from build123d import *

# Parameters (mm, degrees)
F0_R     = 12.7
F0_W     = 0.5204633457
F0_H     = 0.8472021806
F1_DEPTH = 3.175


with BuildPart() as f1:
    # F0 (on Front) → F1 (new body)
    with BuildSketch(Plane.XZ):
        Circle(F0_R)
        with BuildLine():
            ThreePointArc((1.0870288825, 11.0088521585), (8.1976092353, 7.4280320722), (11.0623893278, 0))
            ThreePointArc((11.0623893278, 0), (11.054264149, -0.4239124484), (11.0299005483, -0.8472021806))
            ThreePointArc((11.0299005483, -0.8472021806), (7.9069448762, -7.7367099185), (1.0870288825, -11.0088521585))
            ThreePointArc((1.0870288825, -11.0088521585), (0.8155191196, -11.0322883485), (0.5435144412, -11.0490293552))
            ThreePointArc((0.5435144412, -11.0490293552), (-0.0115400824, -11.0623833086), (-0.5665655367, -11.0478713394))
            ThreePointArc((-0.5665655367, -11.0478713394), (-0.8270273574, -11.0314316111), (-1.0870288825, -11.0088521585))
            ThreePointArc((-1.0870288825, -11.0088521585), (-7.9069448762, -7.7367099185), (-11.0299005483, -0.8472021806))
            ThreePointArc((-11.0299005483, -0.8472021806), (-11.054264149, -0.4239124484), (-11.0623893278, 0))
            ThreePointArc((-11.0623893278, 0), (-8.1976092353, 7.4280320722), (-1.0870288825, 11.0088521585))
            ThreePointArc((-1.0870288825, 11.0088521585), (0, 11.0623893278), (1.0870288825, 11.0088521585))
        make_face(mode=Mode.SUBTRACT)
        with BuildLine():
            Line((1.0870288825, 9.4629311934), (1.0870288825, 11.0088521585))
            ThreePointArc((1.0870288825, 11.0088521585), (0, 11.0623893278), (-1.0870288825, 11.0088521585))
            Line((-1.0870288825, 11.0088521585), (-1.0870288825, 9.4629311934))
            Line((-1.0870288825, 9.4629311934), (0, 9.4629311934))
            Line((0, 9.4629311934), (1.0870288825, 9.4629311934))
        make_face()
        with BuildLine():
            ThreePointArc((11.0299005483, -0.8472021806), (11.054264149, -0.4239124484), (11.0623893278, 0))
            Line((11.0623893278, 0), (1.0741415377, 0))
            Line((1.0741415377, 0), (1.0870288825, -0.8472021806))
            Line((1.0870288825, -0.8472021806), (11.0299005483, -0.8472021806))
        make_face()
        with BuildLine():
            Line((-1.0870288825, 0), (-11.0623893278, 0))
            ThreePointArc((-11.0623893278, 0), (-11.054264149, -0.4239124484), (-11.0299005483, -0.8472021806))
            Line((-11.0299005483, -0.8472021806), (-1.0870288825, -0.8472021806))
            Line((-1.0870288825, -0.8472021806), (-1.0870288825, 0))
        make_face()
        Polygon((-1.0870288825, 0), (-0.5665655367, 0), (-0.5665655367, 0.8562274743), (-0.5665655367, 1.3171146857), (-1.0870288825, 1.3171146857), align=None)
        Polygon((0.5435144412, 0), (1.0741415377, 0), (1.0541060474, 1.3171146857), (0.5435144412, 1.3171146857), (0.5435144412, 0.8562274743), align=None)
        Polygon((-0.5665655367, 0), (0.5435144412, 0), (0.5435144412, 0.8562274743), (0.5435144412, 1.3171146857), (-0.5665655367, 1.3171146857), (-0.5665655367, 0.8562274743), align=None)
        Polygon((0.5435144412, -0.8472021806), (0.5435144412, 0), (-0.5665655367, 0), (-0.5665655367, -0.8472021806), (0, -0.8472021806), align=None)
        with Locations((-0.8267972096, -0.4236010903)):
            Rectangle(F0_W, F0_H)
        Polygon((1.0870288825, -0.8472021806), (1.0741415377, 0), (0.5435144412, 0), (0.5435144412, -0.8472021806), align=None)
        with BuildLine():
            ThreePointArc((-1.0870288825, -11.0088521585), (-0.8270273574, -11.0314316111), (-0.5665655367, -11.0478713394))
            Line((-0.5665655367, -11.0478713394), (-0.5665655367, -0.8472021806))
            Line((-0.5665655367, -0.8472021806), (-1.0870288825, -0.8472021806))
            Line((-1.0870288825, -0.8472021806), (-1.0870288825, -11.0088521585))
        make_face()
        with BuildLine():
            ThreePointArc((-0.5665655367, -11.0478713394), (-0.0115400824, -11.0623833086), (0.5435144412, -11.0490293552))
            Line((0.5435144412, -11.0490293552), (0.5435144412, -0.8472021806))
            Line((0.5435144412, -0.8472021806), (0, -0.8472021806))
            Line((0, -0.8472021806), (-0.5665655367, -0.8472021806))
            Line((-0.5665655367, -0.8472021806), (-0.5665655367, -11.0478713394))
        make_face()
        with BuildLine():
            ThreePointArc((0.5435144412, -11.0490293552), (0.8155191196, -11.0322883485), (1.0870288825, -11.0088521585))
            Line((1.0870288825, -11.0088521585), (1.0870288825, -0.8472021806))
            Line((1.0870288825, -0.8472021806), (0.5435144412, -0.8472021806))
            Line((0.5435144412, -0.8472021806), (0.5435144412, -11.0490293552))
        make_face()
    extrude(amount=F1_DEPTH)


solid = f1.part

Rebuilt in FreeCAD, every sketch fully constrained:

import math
import FreeCAD as App
import Part
import Sketcher
from FreeCAD import Vector
Q = App.Units.Quantity

doc = App.newDocument("Part")
body = doc.addObject("PartDesign::Body", "Body")

# Sketch on XZ plane
sketch1 = body.newObject("Sketcher::SketchObject", "Sketch")
sketch1.AttachmentSupport = (doc.getObject("XZ_Plane"), [""])
sketch1.MapMode = "FlatFace"
sketch1.addGeometry(Part.Circle(Vector(0, 0, 0), Vector(0, 0, 1), 12.7), False)
sketch1.addGeometry(Part.LineSegment(Vector(-11.029901, -0.847202, 0), Vector(-1.087029, -0.847202, 0)), False)
sketch1.addGeometry(Part.LineSegment(Vector(-1.087029, -0.847202, 0), Vector(-1.087029, -11.008852, 0)), False)
sketch1.addGeometry(Part.ArcOfCircle(Part.Circle(Vector(0, 0, 0), Vector(0, 0, 1), 11.062389), math.radians(-175.607759), math.radians(-95.639183)), False)
sketch1.addGeometry(Part.LineSegment(Vector(1.087029, -0.847202, 0), Vector(11.029901, -0.847202, 0)), False)
sketch1.addGeometry(Part.ArcOfCircle(Part.Circle(Vector(0, 0, 0), Vector(0, 0, 1), 11.062389), math.radians(-84.360817), math.radians(-4.392241)), False)
sketch1.addGeometry(Part.LineSegment(Vector(1.087029, -11.008852, 0), Vector(1.087029, -0.847202, 0)), False)
sketch1.addGeometry(Part.LineSegment(Vector(11.062389, 0, 0), Vector(1.074142, 0, 0)), False)
sketch1.addGeometry(Part.LineSegment(Vector(1.074142, 0, 0), Vector(1.054106, 1.317115, 0)), False)
sketch1.addGeometry(Part.LineSegment(Vector(1.054106, 1.317115, 0), Vector(-1.087029, 1.317115, 0)), False)
sketch1.addGeometry(Part.LineSegment(Vector(-1.087029, 1.317115, 0), Vector(-1.087029, 0, 0)), False)
sketch1.addGeometry(Part.LineSegment(Vector(-1.087029, 0, 0), Vector(-11.062389, 0, 0)), False)
sketch1.addGeometry(Part.ArcOfCircle(Part.Circle(Vector(0, 0, 0), Vector(0, 0, 1), 11.062389), math.radians(95.639183), math.radians(180)), False)
sketch1.addGeometry(Part.LineSegment(Vector(-1.087029, 11.008852, 0), Vector(-1.087029, 9.462931, 0)), False)
sketch1.addGeometry(Part.LineSegment(Vector(-1.087029, 9.462931, 0), Vector(1.087029, 9.462931, 0)), False)
sketch1.addGeometry(Part.LineSegment(Vector(1.087029, 9.462931, 0), Vector(1.087029, 11.008852, 0)), False)
sketch1.addGeometry(Part.ArcOfCircle(Part.Circle(Vector(0, 0, 0), Vector(0, 0, 1), 11.062389), math.radians(0), math.radians(84.360817)), False)
sketch1.addConstraint(Sketcher.Constraint("Coincident", 1, 2, 2, 1))
sketch1.addConstraint(Sketcher.Constraint("Coincident", 2, 2, 3, 2))
sketch1.addConstraint(Sketcher.Constraint("Coincident", 3, 1, 1, 1))
sketch1.addConstraint(Sketcher.Constraint("Coincident", 4, 2, 5, 2))
sketch1.addConstraint(Sketcher.Constraint("Coincident", 5, 1, 6, 1))
sketch1.addConstraint(Sketcher.Constraint("Coincident", 6, 2, 4, 1))
sketch1.addConstraint(Sketcher.Constraint("Coincident", 7, 2, 8, 1))
sketch1.addConstraint(Sketcher.Constraint("Coincident", 8, 2, 9, 1))
sketch1.addConstraint(Sketcher.Constraint("Coincident", 9, 2, 10, 1))
sketch1.addConstraint(Sketcher.Constraint("Coincident", 10, 2, 11, 1))
sketch1.addConstraint(Sketcher.Constraint("Coincident", 11, 2, 12, 2))
sketch1.addConstraint(Sketcher.Constraint("Coincident", 12, 1, 13, 1))
sketch1.addConstraint(Sketcher.Constraint("Coincident", 13, 2, 14, 1))
sketch1.addConstraint(Sketcher.Constraint("Coincident", 14, 2, 15, 1))
sketch1.addConstraint(Sketcher.Constraint("Coincident", 15, 2, 16, 2))
sketch1.addConstraint(Sketcher.Constraint("Coincident", 16, 1, 7, 1))
sketch1.addConstraint(Sketcher.Constraint("Horizontal", 1))
sketch1.addConstraint(Sketcher.Constraint("Vertical", 2))
sketch1.addConstraint(Sketcher.Constraint("Horizontal", 4))
sketch1.addConstraint(Sketcher.Constraint("Vertical", 6))
sketch1.addConstraint(Sketcher.Constraint("Horizontal", 7))
sketch1.addConstraint(Sketcher.Constraint("Horizontal", 9))
sketch1.addConstraint(Sketcher.Constraint("Vertical", 10))
sketch1.addConstraint(Sketcher.Constraint("Horizontal", 11))
sketch1.addConstraint(Sketcher.Constraint("Vertical", 13))
sketch1.addConstraint(Sketcher.Constraint("Horizontal", 14))
sketch1.addConstraint(Sketcher.Constraint("Vertical", 15))
sketch1.addConstraint(Sketcher.Constraint("Coincident", 0, 3, -1, 1))
sketch1.addConstraint(Sketcher.Constraint("Coincident", 3, 3, -1, 1))
sketch1.addConstraint(Sketcher.Constraint("Coincident", 5, 3, -1, 1))
sketch1.addConstraint(Sketcher.Constraint("Coincident", 12, 3, -1, 1))
sketch1.addConstraint(Sketcher.Constraint("Coincident", 16, 3, -1, 1))
sketch1.addConstraint(Sketcher.Constraint("Equal", 3, 5))
sketch1.addConstraint(Sketcher.Constraint("Equal", 5, 12))
sketch1.addConstraint(Sketcher.Constraint("Equal", 12, 16))
sketch1.addConstraint(Sketcher.Constraint("Symmetric", 1, 2, 6, 2, -2))
sketch1.addConstraint(Sketcher.Constraint("PointOnObject", 7, 2, -1))
sketch1.addConstraint(Sketcher.Constraint("PointOnObject", 10, 2, -1))
sketch1.addConstraint(Sketcher.Constraint("Horizontal", 12, 1, 15, 2))
sketch1.addConstraint(Sketcher.Constraint("Vertical", 2, 2, 9, 2))
sketch1.addConstraint(Sketcher.Constraint("Vertical", 10, 2, 12, 1))
sketch1.addConstraint(Sketcher.Constraint("Diameter", 0, Q("1 in")))
sketch1.addConstraint(Sketcher.Constraint("Radius", 3, Q("11.062389 mm")))
sketch1.addConstraint(Sketcher.Constraint("DistanceX", 1, 1, 1, 2, Q("9.942872 mm")))
sketch1.addConstraint(Sketcher.Constraint("DistanceX", 11, 2, 11, 1, Q("9.97536 mm")))
sketch1.addConstraint(Sketcher.Constraint("DistanceY", 13, 2, 13, 1, Q("1.545921 mm")))
sketch1.addConstraint(Sketcher.Constraint("DistanceX", 7, 2, 7, 1, Q("9.988248 mm")))
sketch1.addConstraint(Sketcher.Constraint("DistanceX", 9, 2, 9, 1, Q("2.141135 mm")))
sketch1.addConstraint(Sketcher.Constraint("DistanceY", 10, 2, 10, 1, Q("1.317115 mm")))
pad1 = body.newObject("PartDesign::Pad", "Pad")
pad1.Profile = sketch1
pad1.Length = Q("0.125 in")

doc.recompute()
